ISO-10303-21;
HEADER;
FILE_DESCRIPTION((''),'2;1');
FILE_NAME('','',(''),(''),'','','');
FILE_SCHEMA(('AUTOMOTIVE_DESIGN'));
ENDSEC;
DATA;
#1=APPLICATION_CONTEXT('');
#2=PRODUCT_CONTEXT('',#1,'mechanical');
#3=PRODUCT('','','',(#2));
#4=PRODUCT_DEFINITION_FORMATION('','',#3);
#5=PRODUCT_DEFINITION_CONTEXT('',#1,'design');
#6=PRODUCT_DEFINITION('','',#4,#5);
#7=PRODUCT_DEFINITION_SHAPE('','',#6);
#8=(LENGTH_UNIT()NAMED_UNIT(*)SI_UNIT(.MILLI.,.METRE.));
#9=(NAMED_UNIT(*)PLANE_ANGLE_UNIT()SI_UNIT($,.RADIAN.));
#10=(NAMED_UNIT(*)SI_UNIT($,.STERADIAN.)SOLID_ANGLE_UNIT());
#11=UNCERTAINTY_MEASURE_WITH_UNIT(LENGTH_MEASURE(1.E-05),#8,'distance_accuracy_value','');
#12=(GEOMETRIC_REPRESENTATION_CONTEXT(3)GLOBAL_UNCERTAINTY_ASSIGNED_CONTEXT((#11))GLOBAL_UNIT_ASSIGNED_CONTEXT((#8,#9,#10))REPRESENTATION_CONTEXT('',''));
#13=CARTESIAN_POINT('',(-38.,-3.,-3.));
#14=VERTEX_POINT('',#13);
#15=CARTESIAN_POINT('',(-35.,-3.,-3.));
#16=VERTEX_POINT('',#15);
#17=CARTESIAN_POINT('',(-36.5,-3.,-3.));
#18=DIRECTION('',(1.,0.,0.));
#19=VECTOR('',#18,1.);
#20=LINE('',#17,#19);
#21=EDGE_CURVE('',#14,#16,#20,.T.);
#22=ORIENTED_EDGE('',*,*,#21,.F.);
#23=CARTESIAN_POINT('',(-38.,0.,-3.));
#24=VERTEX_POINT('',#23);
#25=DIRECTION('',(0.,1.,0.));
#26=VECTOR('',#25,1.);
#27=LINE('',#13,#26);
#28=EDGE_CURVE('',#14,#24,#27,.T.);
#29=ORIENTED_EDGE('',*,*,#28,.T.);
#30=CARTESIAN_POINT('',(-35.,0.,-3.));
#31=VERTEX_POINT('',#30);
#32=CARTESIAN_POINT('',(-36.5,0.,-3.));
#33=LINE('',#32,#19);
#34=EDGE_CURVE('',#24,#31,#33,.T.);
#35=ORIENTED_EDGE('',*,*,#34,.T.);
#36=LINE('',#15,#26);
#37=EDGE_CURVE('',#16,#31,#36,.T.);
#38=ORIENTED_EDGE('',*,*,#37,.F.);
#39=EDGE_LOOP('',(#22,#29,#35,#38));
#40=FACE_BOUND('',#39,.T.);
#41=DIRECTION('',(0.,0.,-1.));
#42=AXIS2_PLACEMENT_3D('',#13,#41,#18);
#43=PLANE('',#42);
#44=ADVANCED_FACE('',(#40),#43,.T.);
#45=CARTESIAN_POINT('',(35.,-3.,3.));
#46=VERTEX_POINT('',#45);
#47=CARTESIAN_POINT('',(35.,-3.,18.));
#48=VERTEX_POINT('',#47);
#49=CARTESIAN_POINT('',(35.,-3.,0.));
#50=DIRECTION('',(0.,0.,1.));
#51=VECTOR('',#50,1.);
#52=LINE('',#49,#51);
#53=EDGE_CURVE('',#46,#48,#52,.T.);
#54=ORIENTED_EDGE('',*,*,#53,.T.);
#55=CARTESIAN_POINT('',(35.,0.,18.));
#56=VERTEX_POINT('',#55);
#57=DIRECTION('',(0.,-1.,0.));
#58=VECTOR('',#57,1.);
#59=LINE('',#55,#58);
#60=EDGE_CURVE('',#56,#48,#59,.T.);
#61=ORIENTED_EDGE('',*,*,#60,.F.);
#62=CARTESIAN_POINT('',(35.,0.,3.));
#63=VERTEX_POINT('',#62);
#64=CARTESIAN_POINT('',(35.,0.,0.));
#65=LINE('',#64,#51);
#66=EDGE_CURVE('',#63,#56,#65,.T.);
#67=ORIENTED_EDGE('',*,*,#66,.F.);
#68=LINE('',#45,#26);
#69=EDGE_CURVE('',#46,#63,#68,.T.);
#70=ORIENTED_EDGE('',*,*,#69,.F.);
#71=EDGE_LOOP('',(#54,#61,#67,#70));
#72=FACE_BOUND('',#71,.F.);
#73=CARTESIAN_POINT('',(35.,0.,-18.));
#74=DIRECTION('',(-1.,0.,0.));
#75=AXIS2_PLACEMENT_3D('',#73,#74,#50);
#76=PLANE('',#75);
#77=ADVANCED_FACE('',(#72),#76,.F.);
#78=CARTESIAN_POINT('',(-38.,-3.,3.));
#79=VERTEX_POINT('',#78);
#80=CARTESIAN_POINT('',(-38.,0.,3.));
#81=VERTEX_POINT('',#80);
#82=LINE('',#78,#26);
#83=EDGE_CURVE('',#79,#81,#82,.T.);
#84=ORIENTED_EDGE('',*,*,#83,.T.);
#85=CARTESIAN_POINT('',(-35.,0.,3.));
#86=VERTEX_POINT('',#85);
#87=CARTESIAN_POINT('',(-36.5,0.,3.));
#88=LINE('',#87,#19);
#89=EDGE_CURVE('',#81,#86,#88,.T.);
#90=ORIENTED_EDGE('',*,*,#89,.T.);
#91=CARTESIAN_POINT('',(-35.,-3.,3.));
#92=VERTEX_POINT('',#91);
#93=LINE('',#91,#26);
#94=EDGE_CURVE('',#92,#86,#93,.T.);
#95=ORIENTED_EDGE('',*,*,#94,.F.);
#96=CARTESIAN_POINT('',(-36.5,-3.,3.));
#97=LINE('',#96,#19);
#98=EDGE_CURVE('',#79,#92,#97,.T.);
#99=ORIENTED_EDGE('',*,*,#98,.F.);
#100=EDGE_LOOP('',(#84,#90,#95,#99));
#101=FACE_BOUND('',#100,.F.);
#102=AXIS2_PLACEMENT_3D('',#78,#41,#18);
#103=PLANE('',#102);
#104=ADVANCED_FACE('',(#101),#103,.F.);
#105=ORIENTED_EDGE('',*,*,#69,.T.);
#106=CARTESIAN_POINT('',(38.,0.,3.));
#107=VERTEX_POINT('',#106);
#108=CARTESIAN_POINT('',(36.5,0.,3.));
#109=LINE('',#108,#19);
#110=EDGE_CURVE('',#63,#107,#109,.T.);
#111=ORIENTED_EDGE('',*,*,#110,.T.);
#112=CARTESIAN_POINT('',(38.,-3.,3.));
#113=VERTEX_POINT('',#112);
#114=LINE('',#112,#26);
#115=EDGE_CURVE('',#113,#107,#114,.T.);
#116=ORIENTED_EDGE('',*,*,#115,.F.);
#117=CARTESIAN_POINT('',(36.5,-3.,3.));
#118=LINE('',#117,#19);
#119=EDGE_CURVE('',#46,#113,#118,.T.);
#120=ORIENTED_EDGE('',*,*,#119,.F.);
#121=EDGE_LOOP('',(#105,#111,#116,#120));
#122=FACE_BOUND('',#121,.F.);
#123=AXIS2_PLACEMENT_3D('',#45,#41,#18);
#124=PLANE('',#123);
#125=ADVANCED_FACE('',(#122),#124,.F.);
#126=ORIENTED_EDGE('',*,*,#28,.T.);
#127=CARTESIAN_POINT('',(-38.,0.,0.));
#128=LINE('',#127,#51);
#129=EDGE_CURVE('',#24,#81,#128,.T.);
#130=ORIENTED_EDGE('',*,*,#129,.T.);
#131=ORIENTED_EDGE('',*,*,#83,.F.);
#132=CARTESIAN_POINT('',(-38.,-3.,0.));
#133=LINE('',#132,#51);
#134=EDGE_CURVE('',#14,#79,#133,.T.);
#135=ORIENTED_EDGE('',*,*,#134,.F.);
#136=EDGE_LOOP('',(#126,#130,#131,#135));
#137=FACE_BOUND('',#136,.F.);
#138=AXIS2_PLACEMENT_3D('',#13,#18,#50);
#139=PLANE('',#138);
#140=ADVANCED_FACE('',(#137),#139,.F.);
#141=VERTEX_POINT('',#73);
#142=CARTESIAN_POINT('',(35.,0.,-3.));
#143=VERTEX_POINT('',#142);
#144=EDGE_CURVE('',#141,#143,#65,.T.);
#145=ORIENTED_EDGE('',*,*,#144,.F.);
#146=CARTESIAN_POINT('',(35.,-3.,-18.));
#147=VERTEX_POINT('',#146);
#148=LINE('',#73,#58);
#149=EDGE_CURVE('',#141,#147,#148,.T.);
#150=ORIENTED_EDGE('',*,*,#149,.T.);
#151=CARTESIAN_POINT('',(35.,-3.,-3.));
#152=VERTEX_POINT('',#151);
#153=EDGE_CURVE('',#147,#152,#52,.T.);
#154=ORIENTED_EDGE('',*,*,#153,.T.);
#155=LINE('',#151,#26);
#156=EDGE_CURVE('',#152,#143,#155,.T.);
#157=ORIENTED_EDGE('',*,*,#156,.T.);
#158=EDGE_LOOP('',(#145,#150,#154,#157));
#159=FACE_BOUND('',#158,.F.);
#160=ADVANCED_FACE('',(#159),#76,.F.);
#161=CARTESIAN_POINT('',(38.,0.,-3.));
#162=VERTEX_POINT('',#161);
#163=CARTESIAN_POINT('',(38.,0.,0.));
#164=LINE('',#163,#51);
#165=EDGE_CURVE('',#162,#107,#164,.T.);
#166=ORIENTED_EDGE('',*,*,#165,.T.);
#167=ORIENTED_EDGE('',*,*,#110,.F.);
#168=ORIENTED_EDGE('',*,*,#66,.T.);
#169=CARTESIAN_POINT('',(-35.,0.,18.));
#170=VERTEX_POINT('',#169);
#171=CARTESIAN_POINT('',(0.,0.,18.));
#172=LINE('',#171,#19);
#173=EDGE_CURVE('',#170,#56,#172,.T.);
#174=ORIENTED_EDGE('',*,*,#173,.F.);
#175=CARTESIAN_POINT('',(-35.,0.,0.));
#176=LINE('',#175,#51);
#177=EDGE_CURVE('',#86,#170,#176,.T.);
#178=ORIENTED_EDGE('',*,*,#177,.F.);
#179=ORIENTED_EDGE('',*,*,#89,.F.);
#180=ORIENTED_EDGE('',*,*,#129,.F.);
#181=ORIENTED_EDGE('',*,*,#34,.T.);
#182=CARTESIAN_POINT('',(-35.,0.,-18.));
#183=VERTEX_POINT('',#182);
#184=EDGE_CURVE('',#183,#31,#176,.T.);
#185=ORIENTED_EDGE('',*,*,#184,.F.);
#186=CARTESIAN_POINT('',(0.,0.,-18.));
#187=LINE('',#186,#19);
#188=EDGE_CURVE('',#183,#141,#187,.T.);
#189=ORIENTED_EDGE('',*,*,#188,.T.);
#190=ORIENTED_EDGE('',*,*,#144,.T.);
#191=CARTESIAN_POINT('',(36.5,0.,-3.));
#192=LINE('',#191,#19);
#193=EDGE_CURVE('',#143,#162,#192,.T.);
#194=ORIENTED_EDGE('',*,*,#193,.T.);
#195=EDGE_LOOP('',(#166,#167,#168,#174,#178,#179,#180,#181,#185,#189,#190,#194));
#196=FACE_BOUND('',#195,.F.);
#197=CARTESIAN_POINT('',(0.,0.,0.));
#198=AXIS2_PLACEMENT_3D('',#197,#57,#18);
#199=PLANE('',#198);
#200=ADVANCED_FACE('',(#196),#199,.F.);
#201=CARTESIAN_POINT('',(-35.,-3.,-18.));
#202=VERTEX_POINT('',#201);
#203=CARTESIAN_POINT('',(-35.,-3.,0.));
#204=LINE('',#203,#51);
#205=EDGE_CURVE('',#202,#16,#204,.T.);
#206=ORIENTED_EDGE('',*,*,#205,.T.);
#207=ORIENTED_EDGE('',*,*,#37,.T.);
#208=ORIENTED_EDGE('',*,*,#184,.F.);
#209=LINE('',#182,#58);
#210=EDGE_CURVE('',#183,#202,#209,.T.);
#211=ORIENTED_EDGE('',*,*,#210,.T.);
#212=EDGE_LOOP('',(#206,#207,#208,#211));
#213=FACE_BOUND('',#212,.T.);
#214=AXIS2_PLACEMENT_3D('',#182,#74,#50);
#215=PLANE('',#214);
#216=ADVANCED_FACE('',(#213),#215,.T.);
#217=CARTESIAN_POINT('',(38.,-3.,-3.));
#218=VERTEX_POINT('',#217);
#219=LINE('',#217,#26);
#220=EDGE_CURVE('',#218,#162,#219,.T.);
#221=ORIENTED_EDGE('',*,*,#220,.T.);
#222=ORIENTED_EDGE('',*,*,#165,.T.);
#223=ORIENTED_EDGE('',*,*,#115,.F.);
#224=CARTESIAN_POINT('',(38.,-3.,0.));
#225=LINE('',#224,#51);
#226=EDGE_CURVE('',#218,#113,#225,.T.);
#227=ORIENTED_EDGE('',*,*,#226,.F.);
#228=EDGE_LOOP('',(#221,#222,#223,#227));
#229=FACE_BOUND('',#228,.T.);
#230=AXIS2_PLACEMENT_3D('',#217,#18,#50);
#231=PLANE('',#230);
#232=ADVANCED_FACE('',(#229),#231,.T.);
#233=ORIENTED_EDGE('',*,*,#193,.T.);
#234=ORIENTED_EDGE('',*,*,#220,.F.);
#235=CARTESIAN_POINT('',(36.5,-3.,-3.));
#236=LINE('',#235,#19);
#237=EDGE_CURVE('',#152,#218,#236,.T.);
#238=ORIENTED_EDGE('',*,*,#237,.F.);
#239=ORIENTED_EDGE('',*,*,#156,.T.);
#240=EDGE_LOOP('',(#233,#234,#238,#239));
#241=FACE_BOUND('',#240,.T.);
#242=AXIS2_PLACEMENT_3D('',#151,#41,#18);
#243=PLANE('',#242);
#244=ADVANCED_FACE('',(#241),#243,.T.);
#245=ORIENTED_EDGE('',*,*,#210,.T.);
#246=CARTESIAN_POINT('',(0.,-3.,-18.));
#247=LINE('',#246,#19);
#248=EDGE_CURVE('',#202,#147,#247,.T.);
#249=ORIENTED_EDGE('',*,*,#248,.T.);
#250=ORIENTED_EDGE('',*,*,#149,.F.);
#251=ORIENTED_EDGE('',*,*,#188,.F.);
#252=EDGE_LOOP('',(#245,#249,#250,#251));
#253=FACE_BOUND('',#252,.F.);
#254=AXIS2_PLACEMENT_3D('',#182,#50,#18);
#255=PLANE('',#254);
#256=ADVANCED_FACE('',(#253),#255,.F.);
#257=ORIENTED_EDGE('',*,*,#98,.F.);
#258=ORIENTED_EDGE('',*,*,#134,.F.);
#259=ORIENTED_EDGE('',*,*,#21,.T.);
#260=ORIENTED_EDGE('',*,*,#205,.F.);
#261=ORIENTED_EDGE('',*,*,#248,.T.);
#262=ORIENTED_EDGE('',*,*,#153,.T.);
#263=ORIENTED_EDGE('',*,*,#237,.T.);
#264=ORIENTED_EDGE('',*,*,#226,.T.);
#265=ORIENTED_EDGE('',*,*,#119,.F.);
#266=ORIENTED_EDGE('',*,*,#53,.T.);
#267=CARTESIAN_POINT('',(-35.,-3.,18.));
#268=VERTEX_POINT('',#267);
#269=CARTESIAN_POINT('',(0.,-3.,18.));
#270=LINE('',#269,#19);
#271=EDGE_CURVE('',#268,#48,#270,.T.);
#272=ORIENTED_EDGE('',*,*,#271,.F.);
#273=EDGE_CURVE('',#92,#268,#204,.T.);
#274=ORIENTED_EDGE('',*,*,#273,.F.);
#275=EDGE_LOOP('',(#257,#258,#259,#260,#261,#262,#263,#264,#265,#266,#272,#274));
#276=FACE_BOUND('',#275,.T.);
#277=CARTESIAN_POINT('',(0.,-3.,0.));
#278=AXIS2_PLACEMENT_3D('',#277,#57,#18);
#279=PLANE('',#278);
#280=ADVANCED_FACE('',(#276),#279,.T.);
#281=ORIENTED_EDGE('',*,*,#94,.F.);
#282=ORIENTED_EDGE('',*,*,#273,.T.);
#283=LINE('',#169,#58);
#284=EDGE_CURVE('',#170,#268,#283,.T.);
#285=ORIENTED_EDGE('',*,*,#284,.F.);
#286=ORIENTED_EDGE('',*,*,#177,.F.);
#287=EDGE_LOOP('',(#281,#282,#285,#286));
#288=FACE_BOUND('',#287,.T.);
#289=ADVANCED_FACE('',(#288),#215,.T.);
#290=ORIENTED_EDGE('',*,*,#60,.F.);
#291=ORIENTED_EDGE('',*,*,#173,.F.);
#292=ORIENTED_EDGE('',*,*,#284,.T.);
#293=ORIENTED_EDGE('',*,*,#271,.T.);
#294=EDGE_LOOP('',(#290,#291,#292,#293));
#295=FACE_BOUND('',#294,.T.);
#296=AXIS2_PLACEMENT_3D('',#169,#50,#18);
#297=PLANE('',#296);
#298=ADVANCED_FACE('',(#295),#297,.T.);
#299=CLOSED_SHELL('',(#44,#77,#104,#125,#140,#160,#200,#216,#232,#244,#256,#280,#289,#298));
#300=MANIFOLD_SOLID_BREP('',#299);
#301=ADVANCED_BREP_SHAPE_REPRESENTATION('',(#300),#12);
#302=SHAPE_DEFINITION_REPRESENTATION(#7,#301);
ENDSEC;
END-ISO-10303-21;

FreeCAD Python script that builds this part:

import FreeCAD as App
import Part
import Sketcher
from FreeCAD import Vector
Q = App.Units.Quantity


def add_polygon(sketch, points):
    """Adds a closed chain of lines whose ends are joined by coincident constraints."""
    first, n = sketch.GeometryCount, len(points)
    for a, b in zip(points, points[1:] + points[:1]):
        sketch.addGeometry(Part.LineSegment(App.Vector(*a, 0), App.Vector(*b, 0)), False)
    for i in range(n):
        sketch.addConstraint(Sketcher.Constraint("Coincident", first + i, 2, first + (i + 1) % n, 1))

doc = App.newDocument("Part")
body = doc.addObject("PartDesign::Body", "Body")

# Sketch on XZ plane
sketch1 = body.newObject("Sketcher::SketchObject", "Sketch")
sketch1.AttachmentSupport = (doc.getObject("XZ_Plane"), [""])
sketch1.MapMode = "FlatFace"
add_polygon(sketch1, [(-35, 18), (-35, -18), (35, -18), (35, 18)])  # lines 0-3
sketch1.addConstraint([
    Sketcher.Constraint("Vertical", 0),
    Sketcher.Constraint("Horizontal", 1),
    Sketcher.Constraint("Vertical", 2),
    Sketcher.Constraint("Horizontal", 3),
    Sketcher.Constraint("Symmetric", 0, 2, 2, 2, -1, 1),
    Sketcher.Constraint("DistanceX", 1, 1, 1, 2, Q("70 mm")),
    Sketcher.Constraint("DistanceY", 0, 2, 0, 1, Q("36 mm")),
])
pad1 = body.newObject("PartDesign::Pad", "Pad")
pad1.Profile = sketch1
pad1.Length = 3

# Sketch on XZ plane
sketch2 = body.newObject("Sketcher::SketchObject", "Sketch001")
sketch2.AttachmentSupport = (doc.getObject("XZ_Plane"), [""])
sketch2.MapMode = "FlatFace"
sketch2.AttachmentOffset = App.Placement(Vector(0, 0, 3), App.Rotation())
add_polygon(sketch2, [(-38, 3), (-38, -3), (-35, -3), (-35, 3)])  # lines 0-3
add_polygon(sketch2, [(35, 3), (35, -3), (38, -3), (38, 3)])  # lines 4-7
sketch2.addConstraint([
    Sketcher.Constraint("Vertical", 0),
    Sketcher.Constraint("Horizontal", 1),
    Sketcher.Constraint("Vertical", 2),
    Sketcher.Constraint("Horizontal", 3),
    Sketcher.Constraint("Vertical", 4),
    Sketcher.Constraint("Horizontal", 5),
    Sketcher.Constraint("Vertical", 6),
    Sketcher.Constraint("Horizontal", 7),
    Sketcher.Constraint("Symmetric", 2, 2, 4, 2, -1, 1),
    Sketcher.Constraint("Symmetric", 0, 2, 6, 2, -1, 1),
    Sketcher.Constraint("Horizontal", 1, 2, 4, 2),
    Sketcher.Constraint("DistanceX", 1, 1, 1, 2, Q("3 mm")),
    Sketcher.Constraint("DistanceY", 0, 2, 0, 1, Q("6 mm")),
    Sketcher.Constraint("DistanceX", 0, 2, -1, 1, Q("38 mm")),
])
pad2 = body.newObject("PartDesign::Pad", "Pad001")
pad2.Profile = sketch2
pad2.Length = 3
pad2.Reversed = True

doc.recompute()
